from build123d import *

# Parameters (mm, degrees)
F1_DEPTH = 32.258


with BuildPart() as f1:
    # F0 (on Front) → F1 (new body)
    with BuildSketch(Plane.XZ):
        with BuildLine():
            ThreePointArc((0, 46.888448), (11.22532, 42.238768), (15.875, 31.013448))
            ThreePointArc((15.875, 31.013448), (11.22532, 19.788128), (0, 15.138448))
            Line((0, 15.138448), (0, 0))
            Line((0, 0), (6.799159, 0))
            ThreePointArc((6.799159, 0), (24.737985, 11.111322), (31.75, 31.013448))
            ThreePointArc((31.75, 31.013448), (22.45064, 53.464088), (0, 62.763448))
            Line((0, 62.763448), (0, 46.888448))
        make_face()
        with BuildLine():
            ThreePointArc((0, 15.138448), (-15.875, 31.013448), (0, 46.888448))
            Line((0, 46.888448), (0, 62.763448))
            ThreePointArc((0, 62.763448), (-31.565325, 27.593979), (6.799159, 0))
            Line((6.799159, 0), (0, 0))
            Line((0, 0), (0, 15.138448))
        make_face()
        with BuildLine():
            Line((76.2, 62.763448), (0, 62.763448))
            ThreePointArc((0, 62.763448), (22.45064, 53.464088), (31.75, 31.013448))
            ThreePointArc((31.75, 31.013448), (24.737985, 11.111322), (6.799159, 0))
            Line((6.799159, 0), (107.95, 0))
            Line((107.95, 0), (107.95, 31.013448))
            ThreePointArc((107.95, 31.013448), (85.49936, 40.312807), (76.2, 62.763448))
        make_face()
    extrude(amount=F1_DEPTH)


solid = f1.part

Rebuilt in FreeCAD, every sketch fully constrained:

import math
import FreeCAD as App
import Part
import Sketcher
from FreeCAD import Vector
Q = App.Units.Quantity

doc = App.newDocument("Part")
body = doc.addObject("PartDesign::Body", "Body")

# Sketch on XZ plane
sketch1 = body.newObject("Sketcher::SketchObject", "Sketch")
sketch1.AttachmentSupport = (doc.getObject("XZ_Plane"), [""])
sketch1.MapMode = "FlatFace"
sketch1.addGeometry(Part.ArcOfCircle(Part.Circle(Vector(0, 31, 0), Vector(0, 0, 1), 32), math.radians(90), math.radians(282)), False)
sketch1.addGeometry(Part.LineSegment(Vector(7, 0, 0), Vector(108, 0, 0)), False)
sketch1.addGeometry(Part.LineSegment(Vector(108, 0, 0), Vector(108, 31, 0)), False)
sketch1.addGeometry(Part.ArcOfCircle(Part.Circle(Vector(108, 63, 0), Vector(0, 0, 1), 32), math.radians(180), math.radians(270)), False)
sketch1.addGeometry(Part.LineSegment(Vector(76, 63, 0), Vector(0, 63, 0)), False)
sketch1.addGeometry(Part.ArcOfCircle(Part.Circle(Vector(0, 31, 0), Vector(0, 0, 1), 16), math.radians(0), math.radians(90)), False)
sketch1.addGeometry(Part.ArcOfCircle(Part.Circle(Vector(0, 31, 0), Vector(0, 0, 1), 16), math.radians(-90), math.radians(0)), False)
sketch1.addGeometry(Part.ArcOfCircle(Part.Circle(Vector(0, 31, 0), Vector(0, 0, 1), 16), math.radians(90), math.radians(270)), False)
sketch1.addConstraint(Sketcher.Constraint("Coincident", 0, 2, 1, 1))
sketch1.addConstraint(Sketcher.Constraint("Coincident", 1, 2, 2, 1))
sketch1.addConstraint(Sketcher.Constraint("Coincident", 2, 2, 3, 2))
sketch1.addConstraint(Sketcher.Constraint("Coincident", 3, 1, 4, 1))
sketch1.addConstraint(Sketcher.Constraint("Tangent", 4, 2, 0, 1))
sketch1.addConstraint(Sketcher.Constraint("Tangent", 5, 1, 6, 2))
sketch1.addConstraint(Sketcher.Constraint("Tangent", 6, 1, 7, 2))
sketch1.addConstraint(Sketcher.Constraint("Tangent", 7, 1, 5, 2))
sketch1.addConstraint(Sketcher.Constraint("Horizontal", 1))
sketch1.addConstraint(Sketcher.Constraint("Vertical", 2))
sketch1.addConstraint(Sketcher.Constraint("Horizontal", 4))
sketch1.addConstraint(Sketcher.Constraint("Coincident", 5, 3, 0, 3))
sketch1.addConstraint(Sketcher.Constraint("Equal", 0, 3))
sketch1.addConstraint(Sketcher.Constraint("PointOnObject", 0, 3, -2))
sketch1.addConstraint(Sketcher.Constraint("PointOnObject", 0, 2, -1))
sketch1.addConstraint(Sketcher.Constraint("PointOnObject", 6, 1, -2))
sketch1.addConstraint(Sketcher.Constraint("PointOnObject", 7, 1, -2))
sketch1.addConstraint(Sketcher.Constraint("Horizontal", 7, 3, 2, 2))
sketch1.addConstraint(Sketcher.Constraint("Horizontal", 2, 2, 5, 1))
sketch1.addConstraint(Sketcher.Constraint("Vertical", 3, 3, 1, 2))
sketch1.addConstraint(Sketcher.Constraint("DistanceX", 4, 2, 4, 1, Q("3 in")))
sketch1.addConstraint(Sketcher.Constraint("Radius", 0, Q("1.25 in")))
sketch1.addConstraint(Sketcher.Constraint("Radius", 5, Q("0.625 in")))
sketch1.addConstraint(Sketcher.Constraint("DistanceX", 1, 1, 1, 2, Q("101.150841 mm")))
pad1 = body.newObject("PartDesign::Pad", "Pad")
pad1.Profile = sketch1
pad1.Length = Q("1.27 in")

doc.recompute()
